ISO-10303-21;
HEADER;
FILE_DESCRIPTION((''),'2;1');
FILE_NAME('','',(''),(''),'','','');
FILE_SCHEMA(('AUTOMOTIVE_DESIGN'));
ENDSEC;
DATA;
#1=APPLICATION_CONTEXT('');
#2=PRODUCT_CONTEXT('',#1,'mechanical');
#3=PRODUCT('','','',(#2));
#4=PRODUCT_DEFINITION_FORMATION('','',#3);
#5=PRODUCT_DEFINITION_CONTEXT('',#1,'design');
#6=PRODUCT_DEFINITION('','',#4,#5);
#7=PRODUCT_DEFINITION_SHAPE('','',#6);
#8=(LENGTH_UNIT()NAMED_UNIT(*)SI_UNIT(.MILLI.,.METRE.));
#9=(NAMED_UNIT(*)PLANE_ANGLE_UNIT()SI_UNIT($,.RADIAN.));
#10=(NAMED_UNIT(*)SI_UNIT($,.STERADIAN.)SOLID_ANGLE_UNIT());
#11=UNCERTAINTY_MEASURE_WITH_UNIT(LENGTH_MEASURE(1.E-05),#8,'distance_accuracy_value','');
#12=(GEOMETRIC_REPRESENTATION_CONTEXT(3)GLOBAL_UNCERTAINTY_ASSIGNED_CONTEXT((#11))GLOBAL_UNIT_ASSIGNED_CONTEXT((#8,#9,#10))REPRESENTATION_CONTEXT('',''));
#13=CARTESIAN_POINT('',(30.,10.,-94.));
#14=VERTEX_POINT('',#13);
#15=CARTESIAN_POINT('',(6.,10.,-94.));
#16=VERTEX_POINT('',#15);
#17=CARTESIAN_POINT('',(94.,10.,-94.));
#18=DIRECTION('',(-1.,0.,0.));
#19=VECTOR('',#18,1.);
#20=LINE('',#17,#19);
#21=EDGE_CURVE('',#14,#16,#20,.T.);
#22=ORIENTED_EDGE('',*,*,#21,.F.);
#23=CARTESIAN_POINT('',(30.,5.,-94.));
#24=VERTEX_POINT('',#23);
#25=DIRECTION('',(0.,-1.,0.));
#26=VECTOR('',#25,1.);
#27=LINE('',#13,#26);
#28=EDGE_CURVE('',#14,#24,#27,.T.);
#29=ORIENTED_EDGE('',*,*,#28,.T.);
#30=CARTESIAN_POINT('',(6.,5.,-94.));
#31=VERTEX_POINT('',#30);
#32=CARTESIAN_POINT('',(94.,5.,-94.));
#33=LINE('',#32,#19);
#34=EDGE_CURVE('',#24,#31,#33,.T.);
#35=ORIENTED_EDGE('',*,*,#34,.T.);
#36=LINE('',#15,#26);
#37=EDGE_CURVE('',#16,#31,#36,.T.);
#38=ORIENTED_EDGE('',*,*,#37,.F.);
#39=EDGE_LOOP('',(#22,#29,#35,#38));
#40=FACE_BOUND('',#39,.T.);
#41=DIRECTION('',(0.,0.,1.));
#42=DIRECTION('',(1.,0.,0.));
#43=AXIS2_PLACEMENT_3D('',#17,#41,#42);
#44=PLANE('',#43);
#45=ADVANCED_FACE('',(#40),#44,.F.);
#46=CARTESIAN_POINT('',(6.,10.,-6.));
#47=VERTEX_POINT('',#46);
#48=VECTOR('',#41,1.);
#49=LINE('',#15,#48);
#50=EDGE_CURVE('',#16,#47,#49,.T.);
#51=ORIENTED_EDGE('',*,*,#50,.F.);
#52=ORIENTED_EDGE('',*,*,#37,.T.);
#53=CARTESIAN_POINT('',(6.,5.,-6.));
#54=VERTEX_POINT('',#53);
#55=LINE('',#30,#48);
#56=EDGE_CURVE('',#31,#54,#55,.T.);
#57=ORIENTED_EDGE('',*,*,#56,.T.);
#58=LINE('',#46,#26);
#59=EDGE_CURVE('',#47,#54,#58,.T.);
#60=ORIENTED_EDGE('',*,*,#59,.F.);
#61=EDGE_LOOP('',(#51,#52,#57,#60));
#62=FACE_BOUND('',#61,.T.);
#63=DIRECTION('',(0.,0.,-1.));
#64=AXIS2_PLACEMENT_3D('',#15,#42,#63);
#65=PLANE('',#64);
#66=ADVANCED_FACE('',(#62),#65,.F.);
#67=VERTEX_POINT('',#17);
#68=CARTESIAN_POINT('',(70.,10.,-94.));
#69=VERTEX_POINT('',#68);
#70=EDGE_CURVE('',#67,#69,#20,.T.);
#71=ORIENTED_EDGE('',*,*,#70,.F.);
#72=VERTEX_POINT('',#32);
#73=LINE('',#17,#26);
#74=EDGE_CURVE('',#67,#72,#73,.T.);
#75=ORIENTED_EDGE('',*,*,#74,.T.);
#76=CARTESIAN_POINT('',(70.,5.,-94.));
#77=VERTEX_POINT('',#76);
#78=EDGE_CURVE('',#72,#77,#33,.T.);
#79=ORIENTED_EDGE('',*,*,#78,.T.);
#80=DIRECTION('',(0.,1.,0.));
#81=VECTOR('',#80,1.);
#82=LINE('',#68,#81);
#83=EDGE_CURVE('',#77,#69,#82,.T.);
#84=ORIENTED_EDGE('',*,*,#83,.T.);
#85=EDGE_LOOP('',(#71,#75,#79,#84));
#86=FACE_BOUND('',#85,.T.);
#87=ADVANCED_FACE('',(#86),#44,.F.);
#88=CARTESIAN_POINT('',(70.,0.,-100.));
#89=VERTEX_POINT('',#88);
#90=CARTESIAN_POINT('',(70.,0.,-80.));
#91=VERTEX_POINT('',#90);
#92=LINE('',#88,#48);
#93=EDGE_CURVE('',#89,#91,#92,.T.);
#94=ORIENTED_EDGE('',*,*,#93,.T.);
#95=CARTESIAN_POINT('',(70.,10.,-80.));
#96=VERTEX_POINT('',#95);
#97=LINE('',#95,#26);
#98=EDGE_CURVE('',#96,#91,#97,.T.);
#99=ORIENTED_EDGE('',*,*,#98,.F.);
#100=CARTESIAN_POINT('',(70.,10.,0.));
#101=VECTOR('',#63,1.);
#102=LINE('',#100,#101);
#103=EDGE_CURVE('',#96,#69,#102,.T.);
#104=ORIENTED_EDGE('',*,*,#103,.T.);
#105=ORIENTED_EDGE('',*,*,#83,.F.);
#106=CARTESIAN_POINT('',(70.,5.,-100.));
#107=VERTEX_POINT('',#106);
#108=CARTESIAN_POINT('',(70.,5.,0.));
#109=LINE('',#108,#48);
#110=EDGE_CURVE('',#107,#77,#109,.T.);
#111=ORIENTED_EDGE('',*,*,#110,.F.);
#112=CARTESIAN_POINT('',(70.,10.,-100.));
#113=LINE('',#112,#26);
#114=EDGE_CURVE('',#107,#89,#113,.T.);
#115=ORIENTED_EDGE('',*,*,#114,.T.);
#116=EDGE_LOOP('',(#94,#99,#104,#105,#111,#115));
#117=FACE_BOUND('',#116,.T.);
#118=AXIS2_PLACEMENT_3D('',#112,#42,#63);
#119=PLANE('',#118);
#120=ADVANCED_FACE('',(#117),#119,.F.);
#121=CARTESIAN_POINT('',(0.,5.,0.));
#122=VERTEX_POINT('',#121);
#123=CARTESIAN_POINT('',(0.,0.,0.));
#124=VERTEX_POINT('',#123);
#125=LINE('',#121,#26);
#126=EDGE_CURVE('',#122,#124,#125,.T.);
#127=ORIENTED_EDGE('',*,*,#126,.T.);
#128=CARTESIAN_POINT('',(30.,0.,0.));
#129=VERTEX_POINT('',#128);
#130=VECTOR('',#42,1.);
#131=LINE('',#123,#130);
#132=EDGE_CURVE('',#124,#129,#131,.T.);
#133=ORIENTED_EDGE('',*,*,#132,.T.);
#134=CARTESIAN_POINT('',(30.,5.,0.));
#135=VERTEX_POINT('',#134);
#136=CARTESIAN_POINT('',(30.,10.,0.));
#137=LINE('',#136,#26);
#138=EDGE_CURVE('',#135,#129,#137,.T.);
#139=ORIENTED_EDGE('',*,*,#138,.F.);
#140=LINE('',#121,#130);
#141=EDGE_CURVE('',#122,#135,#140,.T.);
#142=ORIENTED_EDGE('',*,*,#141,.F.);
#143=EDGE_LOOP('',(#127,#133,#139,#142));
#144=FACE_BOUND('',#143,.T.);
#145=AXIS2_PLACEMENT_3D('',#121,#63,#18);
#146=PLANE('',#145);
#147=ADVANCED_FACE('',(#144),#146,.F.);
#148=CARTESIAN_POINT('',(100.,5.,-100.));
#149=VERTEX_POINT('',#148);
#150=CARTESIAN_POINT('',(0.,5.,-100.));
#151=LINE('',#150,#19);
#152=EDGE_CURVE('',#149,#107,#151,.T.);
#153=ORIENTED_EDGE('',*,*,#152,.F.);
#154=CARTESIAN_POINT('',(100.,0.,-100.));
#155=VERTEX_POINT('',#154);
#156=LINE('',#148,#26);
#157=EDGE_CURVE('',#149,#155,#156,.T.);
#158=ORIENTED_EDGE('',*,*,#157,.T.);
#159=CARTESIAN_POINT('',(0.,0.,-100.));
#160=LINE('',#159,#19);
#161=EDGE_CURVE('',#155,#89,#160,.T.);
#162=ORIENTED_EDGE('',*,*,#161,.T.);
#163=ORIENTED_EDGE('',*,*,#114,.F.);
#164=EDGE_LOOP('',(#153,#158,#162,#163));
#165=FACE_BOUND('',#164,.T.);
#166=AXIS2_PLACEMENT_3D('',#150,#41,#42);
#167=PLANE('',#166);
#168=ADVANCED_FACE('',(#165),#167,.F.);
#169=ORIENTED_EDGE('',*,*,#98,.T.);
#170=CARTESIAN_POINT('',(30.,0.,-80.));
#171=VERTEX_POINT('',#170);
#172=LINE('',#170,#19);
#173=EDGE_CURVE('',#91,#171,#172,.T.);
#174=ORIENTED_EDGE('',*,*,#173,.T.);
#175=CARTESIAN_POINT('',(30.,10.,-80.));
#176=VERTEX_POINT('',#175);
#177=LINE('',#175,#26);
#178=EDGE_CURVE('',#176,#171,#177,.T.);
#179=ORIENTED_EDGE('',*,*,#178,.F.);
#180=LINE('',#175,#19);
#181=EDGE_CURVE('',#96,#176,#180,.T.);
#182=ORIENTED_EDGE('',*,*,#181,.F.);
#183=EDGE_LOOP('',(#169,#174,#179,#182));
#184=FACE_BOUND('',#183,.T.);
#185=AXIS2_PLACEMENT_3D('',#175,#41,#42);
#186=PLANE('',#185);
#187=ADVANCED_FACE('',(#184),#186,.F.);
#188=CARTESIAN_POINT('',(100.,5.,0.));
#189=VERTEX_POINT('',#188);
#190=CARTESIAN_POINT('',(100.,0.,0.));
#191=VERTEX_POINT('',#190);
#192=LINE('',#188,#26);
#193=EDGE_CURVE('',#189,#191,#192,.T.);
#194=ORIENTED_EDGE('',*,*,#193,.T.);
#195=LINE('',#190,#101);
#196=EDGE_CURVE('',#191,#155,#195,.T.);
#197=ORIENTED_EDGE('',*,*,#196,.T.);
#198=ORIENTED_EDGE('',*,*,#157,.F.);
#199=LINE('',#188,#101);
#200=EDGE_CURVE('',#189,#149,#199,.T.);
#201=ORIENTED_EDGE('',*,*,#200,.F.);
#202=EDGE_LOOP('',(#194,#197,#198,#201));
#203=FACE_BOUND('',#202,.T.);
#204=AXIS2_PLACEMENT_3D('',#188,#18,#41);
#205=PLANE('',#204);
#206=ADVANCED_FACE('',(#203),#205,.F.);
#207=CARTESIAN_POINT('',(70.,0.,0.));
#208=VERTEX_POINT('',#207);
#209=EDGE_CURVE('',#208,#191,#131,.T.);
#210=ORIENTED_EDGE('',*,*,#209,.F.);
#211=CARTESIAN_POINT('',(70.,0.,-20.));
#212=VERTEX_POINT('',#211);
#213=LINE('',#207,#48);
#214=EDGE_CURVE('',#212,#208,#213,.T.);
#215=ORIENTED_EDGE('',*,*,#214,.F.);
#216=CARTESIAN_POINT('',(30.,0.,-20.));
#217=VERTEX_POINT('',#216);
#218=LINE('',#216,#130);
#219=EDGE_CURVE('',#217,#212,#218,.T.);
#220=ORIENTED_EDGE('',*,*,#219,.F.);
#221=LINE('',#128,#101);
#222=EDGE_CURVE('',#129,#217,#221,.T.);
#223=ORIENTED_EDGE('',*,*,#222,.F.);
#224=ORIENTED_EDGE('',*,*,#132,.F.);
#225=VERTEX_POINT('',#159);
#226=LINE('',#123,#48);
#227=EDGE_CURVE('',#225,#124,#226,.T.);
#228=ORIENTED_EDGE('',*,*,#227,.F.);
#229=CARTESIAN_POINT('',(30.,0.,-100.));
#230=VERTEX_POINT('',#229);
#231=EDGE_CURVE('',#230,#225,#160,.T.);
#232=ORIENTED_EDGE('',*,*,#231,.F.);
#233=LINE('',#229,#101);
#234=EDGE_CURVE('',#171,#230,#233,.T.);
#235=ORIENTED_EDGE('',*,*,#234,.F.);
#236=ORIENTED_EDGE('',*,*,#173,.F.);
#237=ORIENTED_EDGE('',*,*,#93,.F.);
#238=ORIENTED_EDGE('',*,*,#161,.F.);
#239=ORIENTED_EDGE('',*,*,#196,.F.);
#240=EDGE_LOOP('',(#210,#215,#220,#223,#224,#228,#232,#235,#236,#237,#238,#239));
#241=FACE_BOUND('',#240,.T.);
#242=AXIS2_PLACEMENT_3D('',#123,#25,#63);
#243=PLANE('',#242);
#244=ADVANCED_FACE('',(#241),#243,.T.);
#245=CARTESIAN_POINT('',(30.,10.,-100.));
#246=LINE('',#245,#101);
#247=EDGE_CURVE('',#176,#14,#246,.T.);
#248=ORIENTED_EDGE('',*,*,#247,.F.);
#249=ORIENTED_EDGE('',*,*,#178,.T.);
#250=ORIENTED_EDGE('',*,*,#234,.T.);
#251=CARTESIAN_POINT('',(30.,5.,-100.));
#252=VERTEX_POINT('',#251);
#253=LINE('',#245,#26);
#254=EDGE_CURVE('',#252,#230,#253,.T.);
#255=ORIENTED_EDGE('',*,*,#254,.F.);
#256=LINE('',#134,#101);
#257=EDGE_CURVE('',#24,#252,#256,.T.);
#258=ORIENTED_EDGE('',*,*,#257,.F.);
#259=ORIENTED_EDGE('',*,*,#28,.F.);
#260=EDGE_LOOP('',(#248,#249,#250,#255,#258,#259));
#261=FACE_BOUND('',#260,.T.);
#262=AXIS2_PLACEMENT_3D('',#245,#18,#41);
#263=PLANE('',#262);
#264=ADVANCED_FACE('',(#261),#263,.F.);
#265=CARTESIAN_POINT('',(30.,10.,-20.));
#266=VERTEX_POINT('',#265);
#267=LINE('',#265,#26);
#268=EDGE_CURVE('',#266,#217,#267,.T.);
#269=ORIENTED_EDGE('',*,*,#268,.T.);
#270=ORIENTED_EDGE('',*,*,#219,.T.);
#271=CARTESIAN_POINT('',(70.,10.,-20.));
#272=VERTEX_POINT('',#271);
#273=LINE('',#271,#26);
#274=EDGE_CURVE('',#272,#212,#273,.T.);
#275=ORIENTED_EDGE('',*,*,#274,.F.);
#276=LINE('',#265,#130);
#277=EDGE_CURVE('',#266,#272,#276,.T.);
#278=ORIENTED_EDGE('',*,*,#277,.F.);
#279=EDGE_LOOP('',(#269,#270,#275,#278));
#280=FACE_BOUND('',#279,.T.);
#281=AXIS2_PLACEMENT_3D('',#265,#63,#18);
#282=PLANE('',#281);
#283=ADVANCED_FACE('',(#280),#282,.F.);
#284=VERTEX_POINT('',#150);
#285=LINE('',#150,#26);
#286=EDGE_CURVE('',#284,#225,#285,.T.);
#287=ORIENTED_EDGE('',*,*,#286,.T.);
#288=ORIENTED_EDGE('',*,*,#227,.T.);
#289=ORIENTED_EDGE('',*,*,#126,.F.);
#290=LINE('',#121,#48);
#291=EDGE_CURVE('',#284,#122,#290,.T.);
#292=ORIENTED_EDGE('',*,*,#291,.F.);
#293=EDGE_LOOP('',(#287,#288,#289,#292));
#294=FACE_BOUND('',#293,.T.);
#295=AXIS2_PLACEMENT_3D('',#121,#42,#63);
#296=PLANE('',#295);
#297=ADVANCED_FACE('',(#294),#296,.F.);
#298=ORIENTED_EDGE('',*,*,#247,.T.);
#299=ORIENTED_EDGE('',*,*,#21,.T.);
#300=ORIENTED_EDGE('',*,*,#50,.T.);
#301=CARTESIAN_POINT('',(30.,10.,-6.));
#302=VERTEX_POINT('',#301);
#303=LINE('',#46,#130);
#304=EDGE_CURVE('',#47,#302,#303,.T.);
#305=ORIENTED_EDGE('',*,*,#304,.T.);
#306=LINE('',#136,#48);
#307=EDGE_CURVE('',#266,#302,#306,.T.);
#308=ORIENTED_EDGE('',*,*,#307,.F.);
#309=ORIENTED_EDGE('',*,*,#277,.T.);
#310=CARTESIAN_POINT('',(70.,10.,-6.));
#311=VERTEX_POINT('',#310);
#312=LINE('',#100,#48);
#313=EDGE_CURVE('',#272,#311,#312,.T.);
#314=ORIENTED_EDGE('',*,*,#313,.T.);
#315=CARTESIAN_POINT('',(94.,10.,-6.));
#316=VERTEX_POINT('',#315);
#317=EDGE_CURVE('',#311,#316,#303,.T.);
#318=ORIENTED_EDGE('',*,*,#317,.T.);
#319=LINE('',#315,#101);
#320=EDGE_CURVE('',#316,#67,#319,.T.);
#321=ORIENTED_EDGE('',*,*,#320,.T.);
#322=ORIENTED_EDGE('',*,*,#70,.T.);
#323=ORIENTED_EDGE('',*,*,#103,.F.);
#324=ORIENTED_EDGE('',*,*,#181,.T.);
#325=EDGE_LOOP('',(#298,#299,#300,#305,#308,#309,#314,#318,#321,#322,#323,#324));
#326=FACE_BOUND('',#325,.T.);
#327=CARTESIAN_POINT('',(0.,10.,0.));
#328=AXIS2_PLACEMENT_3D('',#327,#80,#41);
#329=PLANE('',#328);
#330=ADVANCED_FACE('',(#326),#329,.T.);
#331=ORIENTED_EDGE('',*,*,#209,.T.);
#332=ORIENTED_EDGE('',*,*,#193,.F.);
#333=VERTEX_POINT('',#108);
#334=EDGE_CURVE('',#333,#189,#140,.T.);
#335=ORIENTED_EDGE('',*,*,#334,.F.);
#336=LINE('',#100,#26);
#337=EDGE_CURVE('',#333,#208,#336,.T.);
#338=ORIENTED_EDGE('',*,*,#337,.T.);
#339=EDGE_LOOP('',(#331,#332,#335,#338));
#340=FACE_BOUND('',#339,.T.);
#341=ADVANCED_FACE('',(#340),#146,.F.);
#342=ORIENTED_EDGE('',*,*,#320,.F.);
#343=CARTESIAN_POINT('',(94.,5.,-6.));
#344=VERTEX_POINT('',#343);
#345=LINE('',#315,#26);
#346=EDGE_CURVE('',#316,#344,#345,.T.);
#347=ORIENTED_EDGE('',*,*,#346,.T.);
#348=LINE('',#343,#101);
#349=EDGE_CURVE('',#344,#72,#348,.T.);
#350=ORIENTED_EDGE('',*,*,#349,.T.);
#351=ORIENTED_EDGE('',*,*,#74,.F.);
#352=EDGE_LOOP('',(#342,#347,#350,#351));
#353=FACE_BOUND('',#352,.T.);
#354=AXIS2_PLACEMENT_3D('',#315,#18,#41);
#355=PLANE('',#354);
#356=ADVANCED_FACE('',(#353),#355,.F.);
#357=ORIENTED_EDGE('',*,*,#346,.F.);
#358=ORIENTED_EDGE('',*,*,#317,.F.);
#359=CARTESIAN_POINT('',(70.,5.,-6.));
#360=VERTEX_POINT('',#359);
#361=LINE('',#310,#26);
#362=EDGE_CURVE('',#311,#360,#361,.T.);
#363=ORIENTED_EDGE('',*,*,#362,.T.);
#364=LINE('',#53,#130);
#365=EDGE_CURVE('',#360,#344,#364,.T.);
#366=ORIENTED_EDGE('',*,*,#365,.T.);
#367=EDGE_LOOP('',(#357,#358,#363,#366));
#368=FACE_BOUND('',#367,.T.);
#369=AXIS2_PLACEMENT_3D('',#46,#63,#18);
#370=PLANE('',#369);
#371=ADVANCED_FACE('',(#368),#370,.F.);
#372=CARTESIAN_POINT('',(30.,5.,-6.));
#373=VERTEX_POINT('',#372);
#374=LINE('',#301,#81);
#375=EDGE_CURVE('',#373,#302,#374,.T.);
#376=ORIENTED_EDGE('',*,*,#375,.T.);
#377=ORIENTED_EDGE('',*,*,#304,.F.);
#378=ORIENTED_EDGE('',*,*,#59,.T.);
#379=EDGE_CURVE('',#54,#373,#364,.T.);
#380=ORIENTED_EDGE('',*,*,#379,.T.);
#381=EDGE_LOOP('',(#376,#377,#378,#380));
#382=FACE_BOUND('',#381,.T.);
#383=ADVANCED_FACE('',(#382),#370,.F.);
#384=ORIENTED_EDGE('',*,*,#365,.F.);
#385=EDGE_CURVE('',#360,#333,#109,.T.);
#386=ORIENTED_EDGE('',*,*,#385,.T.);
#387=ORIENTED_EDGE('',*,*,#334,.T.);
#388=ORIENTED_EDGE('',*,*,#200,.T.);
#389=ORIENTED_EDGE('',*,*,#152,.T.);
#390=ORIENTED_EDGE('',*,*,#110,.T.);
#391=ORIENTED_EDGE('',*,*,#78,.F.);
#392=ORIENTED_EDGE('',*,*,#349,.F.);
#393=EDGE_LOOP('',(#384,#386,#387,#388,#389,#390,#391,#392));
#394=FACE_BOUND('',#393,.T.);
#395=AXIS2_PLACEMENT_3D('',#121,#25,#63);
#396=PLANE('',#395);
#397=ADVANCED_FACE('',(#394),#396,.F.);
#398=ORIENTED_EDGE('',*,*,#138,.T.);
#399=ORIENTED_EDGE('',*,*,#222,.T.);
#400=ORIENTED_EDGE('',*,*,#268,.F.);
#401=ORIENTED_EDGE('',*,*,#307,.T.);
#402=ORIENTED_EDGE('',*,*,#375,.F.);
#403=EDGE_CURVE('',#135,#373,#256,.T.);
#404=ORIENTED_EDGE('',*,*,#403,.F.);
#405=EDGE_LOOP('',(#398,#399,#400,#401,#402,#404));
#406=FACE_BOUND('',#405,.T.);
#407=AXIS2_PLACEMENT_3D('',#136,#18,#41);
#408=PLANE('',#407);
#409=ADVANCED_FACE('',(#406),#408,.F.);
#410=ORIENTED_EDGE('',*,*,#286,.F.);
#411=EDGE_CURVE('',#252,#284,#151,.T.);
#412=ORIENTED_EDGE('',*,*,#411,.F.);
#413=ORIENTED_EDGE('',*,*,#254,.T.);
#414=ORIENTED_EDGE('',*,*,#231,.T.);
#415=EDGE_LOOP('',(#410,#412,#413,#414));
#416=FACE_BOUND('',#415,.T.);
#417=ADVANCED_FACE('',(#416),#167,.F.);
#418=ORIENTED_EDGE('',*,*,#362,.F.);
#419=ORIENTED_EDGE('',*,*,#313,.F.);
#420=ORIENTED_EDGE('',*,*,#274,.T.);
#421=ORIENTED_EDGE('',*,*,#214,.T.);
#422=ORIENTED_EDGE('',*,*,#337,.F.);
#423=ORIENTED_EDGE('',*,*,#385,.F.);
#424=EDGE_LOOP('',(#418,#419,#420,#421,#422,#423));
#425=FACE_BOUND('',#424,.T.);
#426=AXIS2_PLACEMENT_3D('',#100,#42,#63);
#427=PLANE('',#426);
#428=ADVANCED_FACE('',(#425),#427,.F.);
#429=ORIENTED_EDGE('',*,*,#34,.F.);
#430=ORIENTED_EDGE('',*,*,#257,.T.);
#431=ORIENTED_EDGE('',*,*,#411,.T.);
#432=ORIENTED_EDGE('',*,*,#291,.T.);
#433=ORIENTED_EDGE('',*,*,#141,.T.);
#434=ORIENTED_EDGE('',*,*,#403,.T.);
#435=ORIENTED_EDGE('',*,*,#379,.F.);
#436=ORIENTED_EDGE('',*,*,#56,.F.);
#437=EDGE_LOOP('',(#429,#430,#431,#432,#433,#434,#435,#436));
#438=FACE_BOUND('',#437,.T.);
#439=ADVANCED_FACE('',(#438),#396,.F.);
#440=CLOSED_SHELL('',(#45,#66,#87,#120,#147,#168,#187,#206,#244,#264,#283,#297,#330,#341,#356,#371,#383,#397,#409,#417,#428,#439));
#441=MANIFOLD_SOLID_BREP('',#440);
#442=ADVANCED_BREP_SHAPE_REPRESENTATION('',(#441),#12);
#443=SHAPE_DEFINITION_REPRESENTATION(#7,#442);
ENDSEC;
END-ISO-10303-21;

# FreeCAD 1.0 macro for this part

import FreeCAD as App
import Part
import Sketcher
from FreeCAD import Vector

doc = App.newDocument("Part")
body = doc.addObject("PartDesign::Body", "Body")

# Sketch on XZ plane
sketch1 = body.newObject("Sketcher::SketchObject", "Sketch")
sketch1.AttachmentSupport = (doc.getObject("XZ_Plane"), [""])
sketch1.MapMode = "FlatFace"
sketch1.addGeometry(Part.LineSegment(Vector(0, -100, 0), Vector(0, 0, 0)), False)
sketch1.addGeometry(Part.LineSegment(Vector(0, 0, 0), Vector(100, 0, 0)), False)
sketch1.addGeometry(Part.LineSegment(Vector(100, 0, 0), Vector(100, -100, 0)), False)
sketch1.addGeometry(Part.LineSegment(Vector(100, -100, 0), Vector(0, -100, 0)), False)
sketch1.addConstraint(Sketcher.Constraint("Coincident", 0, 2, 1, 1))
sketch1.addConstraint(Sketcher.Constraint("Coincident", 1, 2, 2, 1))
sketch1.addConstraint(Sketcher.Constraint("Coincident", 2, 2, 3, 1))
sketch1.addConstraint(Sketcher.Constraint("Coincident", 3, 2, 0, 1))
sketch1.addConstraint(Sketcher.Constraint("Vertical", 0))
sketch1.addConstraint(Sketcher.Constraint("Horizontal", 1))
sketch1.addConstraint(Sketcher.Constraint("Vertical", 2))
sketch1.addConstraint(Sketcher.Constraint("Horizontal", 3))
sketch1.addConstraint(Sketcher.Constraint("Coincident", 0, 2, -1, 1))
sketch1.addConstraint(Sketcher.Constraint("Equal", 3, 0))
sketch1.addConstraint(Sketcher.Constraint("DistanceX", 1, 1, 1, 2, 100.0))
pad1 = body.newObject("PartDesign::Pad", "Pad")
pad1.Profile = sketch1
pad1.Length = 5
pad1.Reversed = True

# Sketch on XZ plane
sketch2 = body.newObject("Sketcher::SketchObject", "Sketch001")
sketch2.AttachmentSupport = (doc.getObject("XZ_Plane"), [""])
sketch2.MapMode = "FlatFace"
sketch2.AttachmentOffset = App.Placement(Vector(0, 0, -5), App.Rotation())
sketch2.addGeometry(Part.LineSegment(Vector(6, -94, 0), Vector(6, -6, 0)), False)
sketch2.addGeometry(Part.LineSegment(Vector(6, -6, 0), Vector(94, -6, 0)), False)
sketch2.addGeometry(Part.LineSegment(Vector(94, -6, 0), Vector(94, -94, 0)), False)
sketch2.addGeometry(Part.LineSegment(Vector(94, -94, 0), Vector(6, -94, 0)), False)
sketch2.addConstraint(Sketcher.Constraint("Coincident", 0, 2, 1, 1))
sketch2.addConstraint(Sketcher.Constraint("Coincident", 1, 2, 2, 1))
sketch2.addConstraint(Sketcher.Constraint("Coincident", 2, 2, 3, 1))
sketch2.addConstraint(Sketcher.Constraint("Coincident", 3, 2, 0, 1))
sketch2.addConstraint(Sketcher.Constraint("Vertical", 0))
sketch2.addConstraint(Sketcher.Constraint("Horizontal", 1))
sketch2.addConstraint(Sketcher.Constraint("Vertical", 2))
sketch2.addConstraint(Sketcher.Constraint("Horizontal", 3))
sketch2.addConstraint(Sketcher.Constraint("Equal", 3, 0))
sketch2.addConstraint(Sketcher.Constraint("DistanceX", 1, 1, 1, 2, 88.0))
sketch2.addConstraint(Sketcher.Constraint("DistanceX", -1, 1, 0, 2, 6.0))
sketch2.addConstraint(Sketcher.Constraint("DistanceY", 0, 2, -1, 1, 6.0))
pad2 = body.newObject("PartDesign::Pad", "Pad001")
pad2.Profile = sketch2
pad2.Length = 5
pad2.Reversed = True

# Sketch on XZ plane
sketch3 = body.newObject("Sketcher::SketchObject", "Sketch002")
sketch3.AttachmentSupport = (doc.getObject("XZ_Plane"), [""])
sketch3.MapMode = "FlatFace"
sketch3.addGeometry(Part.LineSegment(Vector(30, -80, 0), Vector(30, -100, 0)), False)
sketch3.addGeometry(Part.LineSegment(Vector(30, -100, 0), Vector(70, -100, 0)), False)
sketch3.addGeometry(Part.LineSegment(Vector(70, -100, 0), Vector(70, -80, 0)), False)
sketch3.addGeometry(Part.LineSegment(Vector(70, -80, 0), Vector(30, -80, 0)), False)
sketch3.addGeometry(Part.LineSegment(Vector(30, 0, 0), Vector(30, -20, 0)), False)
sketch3.addGeometry(Part.LineSegment(Vector(30, -20, 0), Vector(70, -20, 0)), False)
sketch3.addGeometry(Part.LineSegment(Vector(70, -20, 0), Vector(70, 0, 0)), False)
sketch3.addGeometry(Part.LineSegment(Vector(70, 0, 0), Vector(30, 0, 0)), False)
sketch3.addConstraint(Sketcher.Constraint("Coincident", 0, 2, 1, 1))
sketch3.addConstraint(Sketcher.Constraint("Coincident", 1, 2, 2, 1))
sketch3.addConstraint(Sketcher.Constraint("Coincident", 2, 2, 3, 1))
sketch3.addConstraint(Sketcher.Constraint("Coincident", 3, 2, 0, 1))
sketch3.addConstraint(Sketcher.Constraint("Coincident", 4, 2, 5, 1))
sketch3.addConstraint(Sketcher.Constraint("Coincident", 5, 2, 6, 1))
sketch3.addConstraint(Sketcher.Constraint("Coincident", 6, 2, 7, 1))
sketch3.addConstraint(Sketcher.Constraint("Coincident", 7, 2, 4, 1))
sketch3.addConstraint(Sketcher.Constraint("Vertical", 0))
sketch3.addConstraint(Sketcher.Constraint("Horizontal", 1))
sketch3.addConstraint(Sketcher.Constraint("Vertical", 2))
sketch3.addConstraint(Sketcher.Constraint("Horizontal", 3))
sketch3.addConstraint(Sketcher.Constraint("Vertical", 4))
sketch3.addConstraint(Sketcher.Constraint("Horizontal", 5))
sketch3.addConstraint(Sketcher.Constraint("Vertical", 6))
sketch3.addConstraint(Sketcher.Constraint("Horizontal", 7))
sketch3.addConstraint(Sketcher.Constraint("PointOnObject", 6, 2, -1))
sketch3.addConstraint(Sketcher.Constraint("Vertical", 3, 2, 4, 2))
sketch3.addConstraint(Sketcher.Constraint("Vertical", 2, 2, 5, 2))
sketch3.addConstraint(Sketcher.Constraint("Equal", 2, 4))
sketch3.addConstraint(Sketcher.Constraint("DistanceX", 1, 1, 1, 2, 40.0))
sketch3.addConstraint(Sketcher.Constraint("DistanceY", 0, 2, 0, 1, 20.0))
sketch3.addConstraint(Sketcher.Constraint("DistanceX", -1, 1, 0, 2, 30.0))
sketch3.addConstraint(Sketcher.Constraint("DistanceY", 0, 2, -1, 1, 100.0))
pocket1 = body.newObject("PartDesign::Pocket", "Pocket")
pocket1.Profile = sketch3
pocket1.Length = 10

doc.recompute()
